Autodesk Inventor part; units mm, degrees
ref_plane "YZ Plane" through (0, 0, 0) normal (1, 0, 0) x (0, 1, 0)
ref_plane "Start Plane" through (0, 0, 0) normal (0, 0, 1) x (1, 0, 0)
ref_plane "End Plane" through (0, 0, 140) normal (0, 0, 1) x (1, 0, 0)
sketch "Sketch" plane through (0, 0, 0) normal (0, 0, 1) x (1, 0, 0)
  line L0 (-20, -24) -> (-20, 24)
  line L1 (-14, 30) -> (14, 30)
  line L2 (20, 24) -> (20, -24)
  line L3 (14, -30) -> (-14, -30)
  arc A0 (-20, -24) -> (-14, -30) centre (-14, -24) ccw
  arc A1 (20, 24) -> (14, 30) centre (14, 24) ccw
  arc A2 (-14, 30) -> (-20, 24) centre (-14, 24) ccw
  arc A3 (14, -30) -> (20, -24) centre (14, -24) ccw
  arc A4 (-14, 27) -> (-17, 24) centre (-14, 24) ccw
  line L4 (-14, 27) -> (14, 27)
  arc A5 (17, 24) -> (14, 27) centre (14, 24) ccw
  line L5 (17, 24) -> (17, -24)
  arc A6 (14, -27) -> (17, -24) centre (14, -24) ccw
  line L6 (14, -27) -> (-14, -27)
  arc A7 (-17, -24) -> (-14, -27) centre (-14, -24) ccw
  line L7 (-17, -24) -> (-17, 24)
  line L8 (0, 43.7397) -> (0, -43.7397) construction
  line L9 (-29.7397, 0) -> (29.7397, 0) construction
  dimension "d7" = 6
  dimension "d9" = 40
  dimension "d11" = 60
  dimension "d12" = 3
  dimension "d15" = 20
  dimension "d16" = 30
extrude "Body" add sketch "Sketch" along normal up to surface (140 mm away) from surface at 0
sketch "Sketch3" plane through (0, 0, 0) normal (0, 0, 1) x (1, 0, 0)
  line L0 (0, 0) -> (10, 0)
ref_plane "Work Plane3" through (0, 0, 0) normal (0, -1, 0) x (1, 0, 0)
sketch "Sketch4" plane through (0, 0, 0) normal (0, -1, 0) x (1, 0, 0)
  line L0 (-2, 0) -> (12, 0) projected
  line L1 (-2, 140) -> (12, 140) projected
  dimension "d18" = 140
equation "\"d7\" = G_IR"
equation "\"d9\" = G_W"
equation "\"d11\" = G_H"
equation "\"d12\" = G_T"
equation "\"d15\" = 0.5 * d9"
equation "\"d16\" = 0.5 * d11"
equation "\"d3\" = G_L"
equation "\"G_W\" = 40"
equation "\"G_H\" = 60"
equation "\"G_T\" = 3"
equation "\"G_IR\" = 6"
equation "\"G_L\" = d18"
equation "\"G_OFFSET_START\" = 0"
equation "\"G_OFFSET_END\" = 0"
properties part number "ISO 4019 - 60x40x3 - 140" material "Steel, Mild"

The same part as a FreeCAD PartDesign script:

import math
import FreeCAD as App
import Part
import Sketcher
Q = App.Units.Quantity

doc = App.newDocument("Part")
params = doc.addObject("Spreadsheet::Sheet", "Params")
for row, (alias, value) in enumerate([
    ("sketch1_radius", "6 mm"),
    ("sketch1_radius2", "3 mm"),
    ("pad1_length", "140 mm"),
], start=1):
    params.set(f"A{row}", alias)
    params.set(f"B{row}", "=" + value)
    params.setAlias(f"B{row}", alias)

body = doc.addObject("PartDesign::Body", "Body")

sketch1 = body.newObject("Sketcher::SketchObject", "Sketch")
sketch1.AttachmentSupport = (doc.getObject("XY_Plane"), [""])
sketch1.MapMode = "FlatFace"
sketch1.addGeometry([
    Part.LineSegment(App.Vector(-20, 24, 0), App.Vector(-20, -24, 0)),
    Part.ArcOfCircle(Part.Circle(App.Vector(-14, -24, 0), App.Vector(0, 0, 1), 6), math.radians(180), math.radians(270)),
    Part.LineSegment(App.Vector(-14, -30, 0), App.Vector(14, -30, 0)),
    Part.ArcOfCircle(Part.Circle(App.Vector(14, -24, 0), App.Vector(0, 0, 1), 6), math.radians(-90), math.radians(0)),
    Part.LineSegment(App.Vector(20, -24, 0), App.Vector(20, 24, 0)),
    Part.ArcOfCircle(Part.Circle(App.Vector(14, 24, 0), App.Vector(0, 0, 1), 6), math.radians(0), math.radians(90)),
    Part.LineSegment(App.Vector(14, 30, 0), App.Vector(-14, 30, 0)),
    Part.ArcOfCircle(Part.Circle(App.Vector(-14, 24, 0), App.Vector(0, 0, 1), 6), math.radians(90), math.radians(180)),
    Part.ArcOfCircle(Part.Circle(App.Vector(-14, 24, 0), App.Vector(0, 0, 1), 3), math.radians(90), math.radians(180)),
    Part.LineSegment(App.Vector(-14, 27, 0), App.Vector(14, 27, 0)),
    Part.ArcOfCircle(Part.Circle(App.Vector(14, 24, 0), App.Vector(0, 0, 1), 3), math.radians(0), math.radians(90)),
    Part.LineSegment(App.Vector(17, 24, 0), App.Vector(17, -24, 0)),
    Part.ArcOfCircle(Part.Circle(App.Vector(14, -24, 0), App.Vector(0, 0, 1), 3), math.radians(-90), math.radians(0)),
    Part.LineSegment(App.Vector(14, -27, 0), App.Vector(-14, -27, 0)),
    Part.ArcOfCircle(Part.Circle(App.Vector(-14, -24, 0), App.Vector(0, 0, 1), 3), math.radians(180), math.radians(270)),
    Part.LineSegment(App.Vector(-17, -24, 0), App.Vector(-17, 24, 0)),
], False)
sketch1.addConstraint([
    Sketcher.Constraint("Tangent", 0, 2, 1, 1),
    Sketcher.Constraint("Tangent", 1, 2, 2, 1),
    Sketcher.Constraint("Tangent", 2, 2, 3, 1),
    Sketcher.Constraint("Tangent", 3, 2, 4, 1),
    Sketcher.Constraint("Tangent", 4, 2, 5, 1),
    Sketcher.Constraint("Tangent", 5, 2, 6, 1),
    Sketcher.Constraint("Tangent", 6, 2, 7, 1),
    Sketcher.Constraint("Tangent", 7, 2, 0, 1),
    Sketcher.Constraint("Tangent", 8, 1, 9, 1),
    Sketcher.Constraint("Tangent", 9, 2, 10, 2),
    Sketcher.Constraint("Tangent", 10, 1, 11, 1),
    Sketcher.Constraint("Tangent", 11, 2, 12, 2),
    Sketcher.Constraint("Tangent", 12, 1, 13, 1),
    Sketcher.Constraint("Tangent", 13, 2, 14, 2),
    Sketcher.Constraint("Tangent", 14, 1, 15, 1),
    Sketcher.Constraint("Tangent", 15, 2, 8, 2),
    Sketcher.Constraint("Vertical", 0),
    Sketcher.Constraint("Horizontal", 2),
    Sketcher.Constraint("Vertical", 4),
    Sketcher.Constraint("Horizontal", 6),
    Sketcher.Constraint("Horizontal", 9),
    Sketcher.Constraint("Vertical", 11),
    Sketcher.Constraint("Horizontal", 13),
    Sketcher.Constraint("Vertical", 15),
    Sketcher.Constraint("Coincident", 8, 3, 7, 3),
    Sketcher.Constraint("Coincident", 10, 3, 5, 3),
    Sketcher.Constraint("Coincident", 12, 3, 3, 3),
    Sketcher.Constraint("Equal", 1, 3),
    Sketcher.Constraint("Equal", 3, 5),
    Sketcher.Constraint("Equal", 5, 7),
    Sketcher.Constraint("Equal", 12, 14),
    Sketcher.Constraint("Symmetric", 1, 3, 5, 3, -1, 1),
    Sketcher.Constraint("Radius", 1, Q("6 mm")),
    Sketcher.Constraint("Radius", 8, Q("3 mm")),
    Sketcher.Constraint("DistanceX", 0, 2, -1, 1, Q("20 mm")),
    Sketcher.Constraint("DistanceY", 1, 2, -1, 1, Q("30 mm")),
])
sketch1.setExpression("Constraints[32]", "Params.sketch1_radius")
sketch1.setExpression("Constraints[33]", "Params.sketch1_radius2")
pad1 = body.newObject("PartDesign::Pad", "Pad")
pad1.Profile = sketch1
pad1.setExpression("Length", "Params.pad1_length")

doc.recompute()
